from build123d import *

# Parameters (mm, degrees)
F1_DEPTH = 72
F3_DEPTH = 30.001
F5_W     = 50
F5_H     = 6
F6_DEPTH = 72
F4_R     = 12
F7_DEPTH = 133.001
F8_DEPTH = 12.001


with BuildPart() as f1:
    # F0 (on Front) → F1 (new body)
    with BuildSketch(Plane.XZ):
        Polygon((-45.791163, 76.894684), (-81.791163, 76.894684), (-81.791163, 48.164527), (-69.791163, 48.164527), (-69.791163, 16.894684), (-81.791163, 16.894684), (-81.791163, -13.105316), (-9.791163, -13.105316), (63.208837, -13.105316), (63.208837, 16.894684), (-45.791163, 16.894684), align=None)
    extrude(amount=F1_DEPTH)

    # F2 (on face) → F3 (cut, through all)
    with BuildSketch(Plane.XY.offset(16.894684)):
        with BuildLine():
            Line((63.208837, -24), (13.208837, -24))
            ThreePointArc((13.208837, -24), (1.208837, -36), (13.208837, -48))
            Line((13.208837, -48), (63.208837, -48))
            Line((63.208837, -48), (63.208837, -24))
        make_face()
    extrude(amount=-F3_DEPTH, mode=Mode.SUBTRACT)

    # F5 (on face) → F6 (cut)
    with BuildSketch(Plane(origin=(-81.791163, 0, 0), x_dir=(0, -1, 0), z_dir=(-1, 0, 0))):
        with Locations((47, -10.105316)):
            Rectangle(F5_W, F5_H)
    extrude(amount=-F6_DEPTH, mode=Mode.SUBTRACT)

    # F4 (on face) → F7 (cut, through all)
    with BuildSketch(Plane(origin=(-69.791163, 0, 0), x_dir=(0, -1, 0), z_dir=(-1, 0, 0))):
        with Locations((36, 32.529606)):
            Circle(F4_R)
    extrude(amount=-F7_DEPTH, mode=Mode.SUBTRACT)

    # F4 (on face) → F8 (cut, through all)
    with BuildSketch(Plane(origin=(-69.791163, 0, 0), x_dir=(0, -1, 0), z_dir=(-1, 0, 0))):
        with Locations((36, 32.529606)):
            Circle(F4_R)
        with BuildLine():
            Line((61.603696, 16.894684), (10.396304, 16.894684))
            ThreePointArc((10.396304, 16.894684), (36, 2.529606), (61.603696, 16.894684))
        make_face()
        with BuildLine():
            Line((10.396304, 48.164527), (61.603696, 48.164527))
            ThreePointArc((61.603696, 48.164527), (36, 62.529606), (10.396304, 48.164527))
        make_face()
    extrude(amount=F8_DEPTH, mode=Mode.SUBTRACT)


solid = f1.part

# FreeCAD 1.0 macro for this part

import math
import FreeCAD as App
import Part
import Sketcher

doc = App.newDocument("Part")
body = doc.addObject("PartDesign::Body", "Body")

sketch1 = body.newObject("Sketcher::SketchObject", "Sketch")
sketch1.AttachmentSupport = (doc.getObject("XZ_Plane"), [""])
sketch1.MapMode = "FlatFace"
sketch1.addGeometry([
    Part.LineSegment(App.Vector(-45.791163, 76.894684, 0), App.Vector(-81.791163, 76.894684, 0)),
    Part.LineSegment(App.Vector(-81.791163, 76.894684, 0), App.Vector(-81.791163, 48.164527, 0)),
    Part.LineSegment(App.Vector(-81.791163, 48.164527, 0), App.Vector(-69.791163, 48.164527, 0)),
    Part.LineSegment(App.Vector(-69.791163, 48.164527, 0), App.Vector(-69.791163, 16.894684, 0)),
    Part.LineSegment(App.Vector(-69.791163, 16.894684, 0), App.Vector(-81.791163, 16.894684, 0)),
    Part.LineSegment(App.Vector(-81.791163, 16.894684, 0), App.Vector(-81.791163, -13.105316, 0)),
    Part.LineSegment(App.Vector(-81.791163, -13.105316, 0), App.Vector(63.208837, -13.105316, 0)),
    Part.LineSegment(App.Vector(63.208837, -13.105316, 0), App.Vector(63.208837, 16.894684, 0)),
    Part.LineSegment(App.Vector(63.208837, 16.894684, 0), App.Vector(-45.791163, 16.894684, 0)),
    Part.LineSegment(App.Vector(-45.791163, 16.894684, 0), App.Vector(-45.791163, 76.894684, 0)),
], False)
sketch1.addConstraint([
    Sketcher.Constraint("Coincident", 0, 2, 1, 1),
    Sketcher.Constraint("Coincident", 1, 2, 2, 1),
    Sketcher.Constraint("Coincident", 2, 2, 3, 1),
    Sketcher.Constraint("Coincident", 3, 2, 4, 1),
    Sketcher.Constraint("Coincident", 4, 2, 5, 1),
    Sketcher.Constraint("Coincident", 5, 2, 6, 1),
    Sketcher.Constraint("Coincident", 6, 2, 7, 1),
    Sketcher.Constraint("Coincident", 7, 2, 8, 1),
    Sketcher.Constraint("Coincident", 8, 2, 9, 1),
    Sketcher.Constraint("Coincident", 9, 2, 0, 1),
    Sketcher.Constraint("Horizontal", 0),
    Sketcher.Constraint("Vertical", 1),
    Sketcher.Constraint("Horizontal", 2),
    Sketcher.Constraint("Vertical", 3),
    Sketcher.Constraint("Horizontal", 4),
    Sketcher.Constraint("Vertical", 5),
    Sketcher.Constraint("Horizontal", 6),
    Sketcher.Constraint("Vertical", 7),
    Sketcher.Constraint("Horizontal", 8),
    Sketcher.Constraint("Vertical", 9),
    Sketcher.Constraint("Horizontal", 4, 2, 7, 2),
    Sketcher.Constraint("Vertical", 1, 2, 4, 2),
    Sketcher.Constraint("DistanceX", 0, 2, 0, 1, 36.0),
    Sketcher.Constraint("DistanceX", 2, 1, 2, 2, 12.0),
    Sketcher.Constraint("DistanceX", 6, 1, 6, 2, 145.0),
    Sketcher.Constraint("DistanceY", 5, 2, 5, 1, 30.0),
    Sketcher.Constraint("DistanceY", 9, 1, 9, 2, 60.0),
    Sketcher.Constraint("DistanceY", 1, 2, 1, 1, 28.730157),
    Sketcher.Constraint("DistanceX", 0, 2, -1, 1, 81.791163),
    Sketcher.Constraint("DistanceY", -1, 1, 0, 2, 76.894684),
])
pad1 = body.newObject("PartDesign::Pad", "Pad")
pad1.Profile = sketch1
pad1.Length = 72

sketch2 = body.newObject("Sketcher::SketchObject", "Sketch001")
sketch2.AttachmentSupport = (doc.getObject("XY_Plane"), [""])
sketch2.MapMode = "FlatFace"
sketch2.AttachmentOffset = App.Placement(App.Vector(0, 0, 16.894684), App.Rotation())
sketch2.addGeometry([
    Part.LineSegment(App.Vector(63.208837, -24, 0), App.Vector(13.208837, -24, 0)),
    Part.ArcOfCircle(Part.Circle(App.Vector(13.208837, -36, 0), App.Vector(0, 0, 1), 12), math.radians(90), math.radians(270)),
    Part.LineSegment(App.Vector(13.208837, -48, 0), App.Vector(63.208837, -48, 0)),
    Part.LineSegment(App.Vector(63.208837, -48, 0), App.Vector(63.208837, -24, 0)),
], False)
sketch2.addConstraint([
    Sketcher.Constraint("Tangent", 0, 2, 1, 1),
    Sketcher.Constraint("Tangent", 1, 2, 2, 1),
    Sketcher.Constraint("Coincident", 2, 2, 3, 1),
    Sketcher.Constraint("Coincident", 3, 2, 0, 1),
    Sketcher.Constraint("Horizontal", 0),
    Sketcher.Constraint("Horizontal", 2),
    Sketcher.Constraint("Vertical", 3),
    Sketcher.Constraint("Radius", 1, 12.0),
    Sketcher.Constraint("DistanceX", 0, 2, 0, 1, 50.0),
    Sketcher.Constraint("DistanceY", 1, 3, -1, 1, 36.0),
    Sketcher.Constraint("DistanceX", -1, 1, 1, 3, 13.208837),
])
pocket1 = body.newObject("PartDesign::Pocket", "Pocket")
pocket1.Profile = sketch2
pocket1.Type = "ThroughAll"

sketch3 = body.newObject("Sketcher::SketchObject", "Sketch002")
sketch3.AttachmentSupport = (doc.getObject("YZ_Plane"), [""])
sketch3.MapMode = "FlatFace"
sketch3.AttachmentOffset = App.Placement(App.Vector(0, 0, -81.791163), App.Rotation())
sketch3.addGeometry([
    Part.LineSegment(App.Vector(-22, -7.105316, 0), App.Vector(-22, -13.105316, 0)),
    Part.LineSegment(App.Vector(-22, -13.105316, 0), App.Vector(-72, -13.105316, 0)),
    Part.LineSegment(App.Vector(-72, -13.105316, 0), App.Vector(-72, -7.105316, 0)),
    Part.LineSegment(App.Vector(-72, -7.105316, 0), App.Vector(-22, -7.105316, 0)),
], False)
sketch3.addConstraint([
    Sketcher.Constraint("Coincident", 0, 2, 1, 1),
    Sketcher.Constraint("Coincident", 1, 2, 2, 1),
    Sketcher.Constraint("Coincident", 2, 2, 3, 1),
    Sketcher.Constraint("Coincident", 3, 2, 0, 1),
    Sketcher.Constraint("Vertical", 0),
    Sketcher.Constraint("Horizontal", 1),
    Sketcher.Constraint("Vertical", 2),
    Sketcher.Constraint("Horizontal", 3),
    Sketcher.Constraint("DistanceX", 1, 2, 1, 1, 50.0),
    Sketcher.Constraint("DistanceY", 0, 2, 0, 1, 6.0),
    Sketcher.Constraint("DistanceX", 0, 2, -1, 1, 22.0),
    Sketcher.Constraint("DistanceY", 0, 2, -1, 1, 13.105316),
])
pocket2 = body.newObject("PartDesign::Pocket", "Pocket001")
pocket2.Profile = sketch3
pocket2.Length = 72
pocket2.Reversed = True

sketch4 = body.newObject("Sketcher::SketchObject", "Sketch003")
sketch4.AttachmentSupport = (doc.getObject("YZ_Plane"), [""])
sketch4.MapMode = "FlatFace"
sketch4.AttachmentOffset = App.Placement(App.Vector(0, 0, -69.791163), App.Rotation())
sketch4.addGeometry(Part.Circle(App.Vector(-36, 32.529606, 0), App.Vector(0, 0, 1), 12), False)
sketch4.addConstraint([
    Sketcher.Constraint("Diameter", 0, 24.0),
    Sketcher.Constraint("DistanceX", 0, 3, -1, 1, 36.0),
    Sketcher.Constraint("DistanceY", -1, 1, 0, 3, 32.529606),
])
pocket3 = body.newObject("PartDesign::Pocket", "Pocket002")
pocket3.Profile = sketch4
pocket3.Type = "ThroughAll"
pocket3.Reversed = True

sketch5 = body.newObject("Sketcher::SketchObject", "Sketch004")
sketch5.AttachmentSupport = (doc.getObject("YZ_Plane"), [""])
sketch5.MapMode = "FlatFace"
sketch5.AttachmentOffset = App.Placement(App.Vector(0, 0, -69.791163), App.Rotation())
sketch5.addGeometry([
    Part.Circle(App.Vector(-36, 32.529606, 0), App.Vector(0, 0, 1), 12),
    Part.LineSegment(App.Vector(-61.603696, 16.894684, 0), App.Vector(-10.396304, 16.894684, 0)),
    Part.ArcOfCircle(Part.Circle(App.Vector(-36, 32.529607, 0), App.Vector(0, 0, 1), 30.000001), math.radians(-148.589631), math.radians(-31.410369)),
    Part.LineSegment(App.Vector(-10.396304, 48.164527, 0), App.Vector(-61.603696, 48.164527, 0)),
    Part.ArcOfCircle(Part.Circle(App.Vector(-36, 32.529606, 0), App.Vector(0, 0, 1), 30), math.radians(31.410365), math.radians(148.589635)),
], False)
sketch5.addConstraint([
    Sketcher.Constraint("Coincident", 1, 1, 2, 1),
    Sketcher.Constraint("Coincident", 2, 2, 1, 2),
    Sketcher.Constraint("Coincident", 3, 1, 4, 1),
    Sketcher.Constraint("Coincident", 4, 2, 3, 2),
    Sketcher.Constraint("Horizontal", 1),
    Sketcher.Constraint("Horizontal", 3),
    Sketcher.Constraint("Coincident", 2, 3, 0, 3),
    Sketcher.Constraint("Coincident", 4, 3, 0, 3),
    Sketcher.Constraint("Equal", 2, 4),
    Sketcher.Constraint("Vertical", 2, 2, 3, 1),
    Sketcher.Constraint("Diameter", 0, 24.0),
    Sketcher.Constraint("Radius", 2, 30.000001),
    Sketcher.Constraint("DistanceX", 0, 3, -1, 1, 36.0),
    Sketcher.Constraint("DistanceX", 1, 1, 1, 2, 51.207392),
    Sketcher.Constraint("DistanceY", -1, 1, 0, 3, 32.529606),
])
pocket4 = body.newObject("PartDesign::Pocket", "Pocket003")
pocket4.Profile = sketch5
pocket4.Type = "ThroughAll"

doc.recompute()
